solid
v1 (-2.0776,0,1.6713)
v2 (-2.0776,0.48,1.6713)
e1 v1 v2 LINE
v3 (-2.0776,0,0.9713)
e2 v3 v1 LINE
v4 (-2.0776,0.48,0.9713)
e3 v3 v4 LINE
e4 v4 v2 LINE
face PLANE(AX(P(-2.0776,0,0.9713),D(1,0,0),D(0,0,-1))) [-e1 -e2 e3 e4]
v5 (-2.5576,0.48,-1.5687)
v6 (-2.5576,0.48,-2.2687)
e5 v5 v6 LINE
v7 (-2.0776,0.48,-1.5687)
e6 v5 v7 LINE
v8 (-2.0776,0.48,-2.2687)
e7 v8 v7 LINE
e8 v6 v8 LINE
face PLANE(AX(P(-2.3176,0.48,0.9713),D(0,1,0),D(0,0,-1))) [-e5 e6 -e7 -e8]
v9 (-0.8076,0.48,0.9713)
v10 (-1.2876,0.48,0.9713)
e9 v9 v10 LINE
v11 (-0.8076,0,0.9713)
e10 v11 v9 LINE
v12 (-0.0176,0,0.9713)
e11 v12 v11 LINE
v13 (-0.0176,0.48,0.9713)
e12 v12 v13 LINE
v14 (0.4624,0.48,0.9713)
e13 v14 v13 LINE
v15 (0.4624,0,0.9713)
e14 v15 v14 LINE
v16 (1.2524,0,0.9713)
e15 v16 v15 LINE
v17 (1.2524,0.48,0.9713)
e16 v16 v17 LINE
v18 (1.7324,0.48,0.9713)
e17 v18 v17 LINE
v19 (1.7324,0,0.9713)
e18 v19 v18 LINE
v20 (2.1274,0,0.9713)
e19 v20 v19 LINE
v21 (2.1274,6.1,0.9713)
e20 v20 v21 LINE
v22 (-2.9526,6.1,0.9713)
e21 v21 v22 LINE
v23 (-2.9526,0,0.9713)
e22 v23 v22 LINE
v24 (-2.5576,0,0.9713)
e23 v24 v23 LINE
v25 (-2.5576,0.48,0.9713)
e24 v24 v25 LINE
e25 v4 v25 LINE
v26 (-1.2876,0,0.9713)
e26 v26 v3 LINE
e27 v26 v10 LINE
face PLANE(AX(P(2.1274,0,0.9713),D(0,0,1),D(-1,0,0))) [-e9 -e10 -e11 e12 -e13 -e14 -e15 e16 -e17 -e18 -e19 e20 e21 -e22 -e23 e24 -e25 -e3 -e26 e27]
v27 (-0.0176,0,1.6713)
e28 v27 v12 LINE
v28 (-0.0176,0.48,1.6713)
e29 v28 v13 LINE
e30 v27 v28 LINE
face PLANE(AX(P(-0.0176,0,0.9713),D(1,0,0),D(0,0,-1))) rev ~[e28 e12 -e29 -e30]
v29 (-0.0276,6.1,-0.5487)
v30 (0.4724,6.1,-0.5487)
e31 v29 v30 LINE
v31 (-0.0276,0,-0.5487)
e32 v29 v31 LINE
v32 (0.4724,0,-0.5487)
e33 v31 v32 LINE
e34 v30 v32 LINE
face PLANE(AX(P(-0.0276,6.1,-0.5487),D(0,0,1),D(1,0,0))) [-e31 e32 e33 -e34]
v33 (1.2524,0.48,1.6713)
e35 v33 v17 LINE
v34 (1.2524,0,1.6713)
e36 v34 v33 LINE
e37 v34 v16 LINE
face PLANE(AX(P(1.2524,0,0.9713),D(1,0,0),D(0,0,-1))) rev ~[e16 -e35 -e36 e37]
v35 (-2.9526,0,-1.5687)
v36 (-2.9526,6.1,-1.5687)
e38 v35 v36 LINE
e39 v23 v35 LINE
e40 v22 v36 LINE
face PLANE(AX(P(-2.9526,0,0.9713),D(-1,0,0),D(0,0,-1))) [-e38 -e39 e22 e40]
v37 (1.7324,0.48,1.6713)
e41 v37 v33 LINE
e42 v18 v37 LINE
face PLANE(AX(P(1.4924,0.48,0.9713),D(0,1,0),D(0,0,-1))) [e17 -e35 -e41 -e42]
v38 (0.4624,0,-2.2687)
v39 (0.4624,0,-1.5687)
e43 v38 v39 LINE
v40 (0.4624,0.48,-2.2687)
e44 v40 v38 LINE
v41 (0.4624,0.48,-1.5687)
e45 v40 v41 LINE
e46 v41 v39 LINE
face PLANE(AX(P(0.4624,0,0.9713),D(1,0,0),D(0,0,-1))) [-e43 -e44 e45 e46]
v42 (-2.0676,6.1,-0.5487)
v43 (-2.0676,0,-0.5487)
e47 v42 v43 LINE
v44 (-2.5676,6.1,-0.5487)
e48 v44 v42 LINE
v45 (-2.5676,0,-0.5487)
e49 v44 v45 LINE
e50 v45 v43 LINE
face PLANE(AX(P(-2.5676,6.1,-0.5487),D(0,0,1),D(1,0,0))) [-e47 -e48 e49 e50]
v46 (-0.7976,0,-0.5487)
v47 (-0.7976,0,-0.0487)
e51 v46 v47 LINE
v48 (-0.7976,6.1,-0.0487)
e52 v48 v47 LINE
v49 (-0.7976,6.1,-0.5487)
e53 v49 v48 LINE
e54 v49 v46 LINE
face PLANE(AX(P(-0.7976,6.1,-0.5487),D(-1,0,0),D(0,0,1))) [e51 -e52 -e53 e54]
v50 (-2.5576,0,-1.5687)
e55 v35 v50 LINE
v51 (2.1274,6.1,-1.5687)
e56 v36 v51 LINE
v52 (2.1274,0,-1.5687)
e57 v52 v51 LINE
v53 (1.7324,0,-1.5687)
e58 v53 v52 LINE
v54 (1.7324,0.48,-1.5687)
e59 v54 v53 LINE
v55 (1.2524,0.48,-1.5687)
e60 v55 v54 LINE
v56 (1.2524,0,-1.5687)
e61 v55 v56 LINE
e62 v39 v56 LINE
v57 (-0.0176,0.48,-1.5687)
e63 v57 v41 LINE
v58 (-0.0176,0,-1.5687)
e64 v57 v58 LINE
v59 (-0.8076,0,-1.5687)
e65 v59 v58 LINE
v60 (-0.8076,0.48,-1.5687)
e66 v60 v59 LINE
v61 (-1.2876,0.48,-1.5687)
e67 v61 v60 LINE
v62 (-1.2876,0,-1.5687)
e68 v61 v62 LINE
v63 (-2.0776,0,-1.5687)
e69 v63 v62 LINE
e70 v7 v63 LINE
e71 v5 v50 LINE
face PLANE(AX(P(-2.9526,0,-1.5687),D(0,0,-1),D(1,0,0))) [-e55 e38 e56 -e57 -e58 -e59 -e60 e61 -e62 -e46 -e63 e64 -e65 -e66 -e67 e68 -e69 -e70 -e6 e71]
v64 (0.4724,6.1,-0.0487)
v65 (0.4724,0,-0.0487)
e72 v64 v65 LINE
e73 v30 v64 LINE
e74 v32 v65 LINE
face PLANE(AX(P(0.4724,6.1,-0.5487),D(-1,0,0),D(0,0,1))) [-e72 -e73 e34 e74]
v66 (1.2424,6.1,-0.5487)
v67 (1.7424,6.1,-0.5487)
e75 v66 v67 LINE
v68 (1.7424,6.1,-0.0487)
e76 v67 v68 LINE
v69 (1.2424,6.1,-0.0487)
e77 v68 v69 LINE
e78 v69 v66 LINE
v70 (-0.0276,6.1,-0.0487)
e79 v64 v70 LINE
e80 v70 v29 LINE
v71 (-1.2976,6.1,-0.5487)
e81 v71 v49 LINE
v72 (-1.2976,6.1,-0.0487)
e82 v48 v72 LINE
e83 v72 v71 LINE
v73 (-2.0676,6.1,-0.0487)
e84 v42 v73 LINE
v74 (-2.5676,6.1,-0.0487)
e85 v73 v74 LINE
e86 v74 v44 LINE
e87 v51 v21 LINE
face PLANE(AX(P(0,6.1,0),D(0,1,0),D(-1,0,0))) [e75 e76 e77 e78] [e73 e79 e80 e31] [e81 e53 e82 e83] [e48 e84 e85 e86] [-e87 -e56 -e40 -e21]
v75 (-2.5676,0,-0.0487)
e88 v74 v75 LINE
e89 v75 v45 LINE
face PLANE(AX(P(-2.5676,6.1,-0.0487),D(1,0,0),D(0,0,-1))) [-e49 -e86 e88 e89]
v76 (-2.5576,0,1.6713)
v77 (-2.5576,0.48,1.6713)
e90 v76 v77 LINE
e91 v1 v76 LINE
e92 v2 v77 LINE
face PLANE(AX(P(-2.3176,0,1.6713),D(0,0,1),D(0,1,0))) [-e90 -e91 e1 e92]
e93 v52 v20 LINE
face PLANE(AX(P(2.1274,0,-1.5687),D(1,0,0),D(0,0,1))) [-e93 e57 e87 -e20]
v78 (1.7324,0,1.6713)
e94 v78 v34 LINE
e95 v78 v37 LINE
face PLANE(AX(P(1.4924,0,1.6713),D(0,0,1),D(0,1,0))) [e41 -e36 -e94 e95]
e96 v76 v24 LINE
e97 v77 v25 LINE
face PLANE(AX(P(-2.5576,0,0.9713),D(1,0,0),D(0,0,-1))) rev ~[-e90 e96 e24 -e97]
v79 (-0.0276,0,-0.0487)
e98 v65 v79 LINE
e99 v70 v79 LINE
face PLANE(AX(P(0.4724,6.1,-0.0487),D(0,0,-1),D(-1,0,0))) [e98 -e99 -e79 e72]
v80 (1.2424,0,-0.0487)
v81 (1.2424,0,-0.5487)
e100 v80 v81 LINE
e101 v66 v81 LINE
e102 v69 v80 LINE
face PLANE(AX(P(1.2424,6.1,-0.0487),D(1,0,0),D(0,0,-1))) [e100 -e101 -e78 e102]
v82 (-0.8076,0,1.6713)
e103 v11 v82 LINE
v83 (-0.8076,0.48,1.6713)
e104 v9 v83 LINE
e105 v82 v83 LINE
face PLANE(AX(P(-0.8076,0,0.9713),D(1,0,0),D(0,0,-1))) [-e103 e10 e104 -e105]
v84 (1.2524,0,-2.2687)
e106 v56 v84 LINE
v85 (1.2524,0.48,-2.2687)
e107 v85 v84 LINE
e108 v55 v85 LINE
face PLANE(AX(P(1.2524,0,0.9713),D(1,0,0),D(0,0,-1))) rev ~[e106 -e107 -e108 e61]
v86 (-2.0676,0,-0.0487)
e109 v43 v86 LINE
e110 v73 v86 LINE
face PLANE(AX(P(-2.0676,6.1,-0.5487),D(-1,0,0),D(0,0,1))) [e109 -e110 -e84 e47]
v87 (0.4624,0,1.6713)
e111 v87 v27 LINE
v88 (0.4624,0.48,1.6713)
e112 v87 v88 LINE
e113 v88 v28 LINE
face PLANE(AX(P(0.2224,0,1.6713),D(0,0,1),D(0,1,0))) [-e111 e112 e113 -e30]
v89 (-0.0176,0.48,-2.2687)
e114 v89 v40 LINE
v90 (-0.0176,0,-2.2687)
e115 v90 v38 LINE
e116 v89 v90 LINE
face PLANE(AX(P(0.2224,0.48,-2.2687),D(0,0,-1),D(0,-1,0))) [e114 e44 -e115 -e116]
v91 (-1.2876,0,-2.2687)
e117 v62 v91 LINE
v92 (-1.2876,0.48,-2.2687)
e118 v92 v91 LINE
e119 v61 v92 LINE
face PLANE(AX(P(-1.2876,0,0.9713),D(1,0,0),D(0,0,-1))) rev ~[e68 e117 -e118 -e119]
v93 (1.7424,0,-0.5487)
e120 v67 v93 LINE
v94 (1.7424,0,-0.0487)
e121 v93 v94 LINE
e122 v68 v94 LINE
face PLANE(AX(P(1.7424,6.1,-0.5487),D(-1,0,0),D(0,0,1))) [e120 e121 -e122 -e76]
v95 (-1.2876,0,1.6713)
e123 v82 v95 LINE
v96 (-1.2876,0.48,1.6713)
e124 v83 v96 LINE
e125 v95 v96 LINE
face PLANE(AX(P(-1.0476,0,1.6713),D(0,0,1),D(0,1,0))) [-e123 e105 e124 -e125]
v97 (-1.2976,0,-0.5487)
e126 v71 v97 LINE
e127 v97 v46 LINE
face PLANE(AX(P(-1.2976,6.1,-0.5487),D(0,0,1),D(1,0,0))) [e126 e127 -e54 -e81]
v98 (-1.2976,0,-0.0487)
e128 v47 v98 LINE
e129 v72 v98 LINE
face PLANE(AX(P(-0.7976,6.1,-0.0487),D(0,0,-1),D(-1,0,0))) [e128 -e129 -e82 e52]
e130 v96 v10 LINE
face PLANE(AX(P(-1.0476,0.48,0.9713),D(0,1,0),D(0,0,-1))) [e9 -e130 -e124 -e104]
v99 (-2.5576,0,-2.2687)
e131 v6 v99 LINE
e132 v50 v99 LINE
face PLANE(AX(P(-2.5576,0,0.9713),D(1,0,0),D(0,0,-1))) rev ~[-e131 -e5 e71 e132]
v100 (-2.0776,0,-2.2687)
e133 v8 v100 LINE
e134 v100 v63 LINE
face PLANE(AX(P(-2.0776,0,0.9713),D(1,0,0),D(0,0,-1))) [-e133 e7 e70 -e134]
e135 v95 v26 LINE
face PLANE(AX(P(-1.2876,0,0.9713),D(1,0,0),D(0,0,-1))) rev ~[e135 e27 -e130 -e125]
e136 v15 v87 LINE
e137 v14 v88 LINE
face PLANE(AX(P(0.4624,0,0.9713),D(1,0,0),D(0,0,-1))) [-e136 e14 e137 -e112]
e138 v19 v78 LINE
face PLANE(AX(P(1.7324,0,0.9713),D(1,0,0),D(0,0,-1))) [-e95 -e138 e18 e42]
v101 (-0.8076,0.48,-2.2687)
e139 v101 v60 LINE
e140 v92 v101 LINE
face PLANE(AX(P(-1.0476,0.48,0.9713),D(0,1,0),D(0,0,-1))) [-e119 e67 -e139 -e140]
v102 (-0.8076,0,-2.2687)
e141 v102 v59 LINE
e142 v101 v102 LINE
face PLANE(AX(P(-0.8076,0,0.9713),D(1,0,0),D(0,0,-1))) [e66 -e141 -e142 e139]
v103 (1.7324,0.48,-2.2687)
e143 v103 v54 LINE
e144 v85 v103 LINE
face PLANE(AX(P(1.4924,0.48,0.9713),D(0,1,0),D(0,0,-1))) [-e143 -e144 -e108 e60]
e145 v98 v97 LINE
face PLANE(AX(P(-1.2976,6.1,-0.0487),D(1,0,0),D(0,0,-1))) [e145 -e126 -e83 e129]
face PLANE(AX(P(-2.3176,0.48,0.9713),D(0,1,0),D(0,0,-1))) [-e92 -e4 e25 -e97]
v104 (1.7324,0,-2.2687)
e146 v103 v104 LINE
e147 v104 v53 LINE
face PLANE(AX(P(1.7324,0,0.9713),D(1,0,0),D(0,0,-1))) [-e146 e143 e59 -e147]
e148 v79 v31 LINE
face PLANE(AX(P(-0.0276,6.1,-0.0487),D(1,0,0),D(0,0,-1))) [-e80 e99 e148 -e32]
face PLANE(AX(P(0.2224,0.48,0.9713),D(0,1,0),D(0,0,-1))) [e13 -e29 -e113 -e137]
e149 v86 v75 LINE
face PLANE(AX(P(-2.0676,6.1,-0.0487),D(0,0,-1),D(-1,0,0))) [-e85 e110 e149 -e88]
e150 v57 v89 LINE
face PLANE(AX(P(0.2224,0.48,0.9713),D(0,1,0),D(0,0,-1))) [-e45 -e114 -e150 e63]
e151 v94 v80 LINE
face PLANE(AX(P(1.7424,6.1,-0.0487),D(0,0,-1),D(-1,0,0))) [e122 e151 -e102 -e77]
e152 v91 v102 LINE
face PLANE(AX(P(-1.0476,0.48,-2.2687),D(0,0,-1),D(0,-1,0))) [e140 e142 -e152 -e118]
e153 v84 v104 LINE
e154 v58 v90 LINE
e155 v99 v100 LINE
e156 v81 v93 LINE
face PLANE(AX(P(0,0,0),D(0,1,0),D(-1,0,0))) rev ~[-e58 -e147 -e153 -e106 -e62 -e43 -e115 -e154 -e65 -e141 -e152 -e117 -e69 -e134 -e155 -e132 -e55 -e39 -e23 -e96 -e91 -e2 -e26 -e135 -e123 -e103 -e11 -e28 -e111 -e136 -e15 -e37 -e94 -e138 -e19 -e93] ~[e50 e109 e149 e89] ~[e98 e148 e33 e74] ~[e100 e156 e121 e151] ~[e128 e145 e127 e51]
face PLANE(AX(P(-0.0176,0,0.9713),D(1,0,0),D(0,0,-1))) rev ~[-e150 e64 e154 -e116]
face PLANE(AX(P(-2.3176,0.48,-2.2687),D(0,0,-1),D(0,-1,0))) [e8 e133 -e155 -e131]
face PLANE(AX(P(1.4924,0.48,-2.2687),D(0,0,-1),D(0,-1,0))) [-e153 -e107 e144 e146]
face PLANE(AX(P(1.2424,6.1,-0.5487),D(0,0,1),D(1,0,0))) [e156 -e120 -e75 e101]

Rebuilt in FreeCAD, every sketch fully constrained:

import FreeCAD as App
import Part
import Sketcher
from FreeCAD import Vector
Q = App.Units.Quantity

doc = App.newDocument("Part")
body = doc.addObject("PartDesign::Body", "Body")

sketch1 = doc.addObject("Sketcher::SketchObject", "Sketch")
body.addObject(sketch1)
sketch1.AttachmentSupport = (doc.XZ_Plane, [""])
sketch1.MapMode = "FlatFace"
sketch1.addGeometry(Part.LineSegment(Vector(-3, 1, 0), Vector(2.1, 1, 0)), False)
sketch1.addGeometry(Part.LineSegment(Vector(2.1, 1, 0), Vector(2.1, -1.6, 0)), False)
sketch1.addGeometry(Part.LineSegment(Vector(2.1, -1.6, 0), Vector(-3, -1.6, 0)), False)
sketch1.addGeometry(Part.LineSegment(Vector(-3, -1.6, 0), Vector(-3, 1, 0)), False)
sketch1.addConstraint(Sketcher.Constraint("Coincident", 0, 2, 1, 1))
sketch1.addConstraint(Sketcher.Constraint("Coincident", 1, 2, 2, 1))
sketch1.addConstraint(Sketcher.Constraint("Coincident", 2, 2, 3, 1))
sketch1.addConstraint(Sketcher.Constraint("Coincident", 3, 2, 0, 1))
sketch1.addConstraint(Sketcher.Constraint("Horizontal", 0))
sketch1.addConstraint(Sketcher.Constraint("Vertical", 1))
sketch1.addConstraint(Sketcher.Constraint("Horizontal", 2))
sketch1.addConstraint(Sketcher.Constraint("Vertical", 3))
sketch1.addConstraint(Sketcher.Constraint("DistanceX", 0, 1, 0, 2, Q("5.08 mm")))
sketch1.addConstraint(Sketcher.Constraint("DistanceY", 1, 2, 1, 1, Q("2.54 mm")))
sketch1.addConstraint(Sketcher.Constraint("DistanceX", -1, 1, 0, 2, Q("2.1274 mm")))
sketch1.addConstraint(Sketcher.Constraint("DistanceY", -1, 1, 0, 2, Q("0.9713 mm")))
pad1 = doc.addObject("PartDesign::Pad", "Pad")
body.addObject(pad1)
pad1.Profile = sketch1
pad1.Length = 6.1
pad1.Reversed = True

sketch2 = doc.addObject("Sketcher::SketchObject", "Sketch001")
body.addObject(sketch2)
sketch2.AttachmentSupport = (doc.YZ_Plane, [""])
sketch2.MapMode = "FlatFace"
sketch2.AttachmentOffset = App.Placement(Vector(0, 0, 1.4924), App.Rotation())
sketch2.addGeometry(Part.LineSegment(Vector(0, -2.27, 0), Vector(0.48, -2.27, 0)), False)
sketch2.addGeometry(Part.LineSegment(Vector(0.48, -2.27, 0), Vector(0.48, 1.67, 0)), False)
sketch2.addGeometry(Part.LineSegment(Vector(0.48, 1.67, 0), Vector(0, 1.67, 0)), False)
sketch2.addGeometry(Part.LineSegment(Vector(0, 1.67, 0), Vector(0, -2.27, 0)), False)
sketch2.addConstraint(Sketcher.Constraint("Coincident", 0, 2, 1, 1))
sketch2.addConstraint(Sketcher.Constraint("Coincident", 1, 2, 2, 1))
sketch2.addConstraint(Sketcher.Constraint("Coincident", 2, 2, 3, 1))
sketch2.addConstraint(Sketcher.Constraint("Coincident", 3, 2, 0, 1))
sketch2.addConstraint(Sketcher.Constraint("Horizontal", 0))
sketch2.addConstraint(Sketcher.Constraint("Vertical", 1))
sketch2.addConstraint(Sketcher.Constraint("Horizontal", 2))
sketch2.addConstraint(Sketcher.Constraint("Vertical", 3))
sketch2.addConstraint(Sketcher.Constraint("PointOnObject", 2, 2, -2))
sketch2.addConstraint(Sketcher.Constraint("DistanceX", 0, 1, 0, 2, Q("0.48 mm")))
sketch2.addConstraint(Sketcher.Constraint("DistanceY", 1, 1, 1, 2, Q("3.94 mm")))
sketch2.addConstraint(Sketcher.Constraint("DistanceY", 0, 2, -1, 1, Q("2.2687 mm")))
pad2 = doc.addObject("PartDesign::Pad", "Pad001")
body.addObject(pad2)
pad2.Profile = sketch2
pad2.Length = 0.48
pad2.Midplane = True
doc.recompute()

linearpattern = doc.addObject("PartDesign::LinearPattern", "LinearPattern")
body.addObject(linearpattern)
linearpattern.Originals = [pad2]
linearpattern.Direction = (doc.X_Axis, [""])
linearpattern.Mode = "offset"
linearpattern.Offset = 1.27
linearpattern.Occurrences = 4
linearpattern.Reversed = True
body.Tip = linearpattern

sketch3 = doc.addObject("Sketcher::SketchObject", "Sketch002")
body.addObject(sketch3)
sketch3.AttachmentSupport = (doc.XZ_Plane, [""])
sketch3.MapMode = "FlatFace"
sketch3.AttachmentOffset = App.Placement(Vector(0, 0, -6.1), App.Rotation())
sketch3.addGeometry(Part.LineSegment(Vector(-2.07, -0.55, 0), Vector(-2.57, -0.55, 0)), False)
sketch3.addGeometry(Part.LineSegment(Vector(-2.57, -0.55, 0), Vector(-2.57, -0.05, 0)), False)
sketch3.addGeometry(Part.LineSegment(Vector(-2.57, -0.05, 0), Vector(-2.07, -0.05, 0)), False)
sketch3.addGeometry(Part.LineSegment(Vector(-2.07, -0.05, 0), Vector(-2.07, -0.55, 0)), False)
sketch3.addConstraint(Sketcher.Constraint("Coincident", 0, 2, 1, 1))
sketch3.addConstraint(Sketcher.Constraint("Coincident", 1, 2, 2, 1))
sketch3.addConstraint(Sketcher.Constraint("Coincident", 2, 2, 3, 1))
sketch3.addConstraint(Sketcher.Constraint("Coincident", 3, 2, 0, 1))
sketch3.addConstraint(Sketcher.Constraint("Horizontal", 0))
sketch3.addConstraint(Sketcher.Constraint("Vertical", 1))
sketch3.addConstraint(Sketcher.Constraint("Horizontal", 2))
sketch3.addConstraint(Sketcher.Constraint("Vertical", 3))
sketch3.addConstraint(Sketcher.Constraint("Equal", 2, 1))
sketch3.addConstraint(Sketcher.Constraint("DistanceX", 0, 2, 0, 1, Q("0.5 mm")))
sketch3.addConstraint(Sketcher.Constraint("DistanceX", 0, 2, -1, 1, Q("2.5676 mm")))
sketch3.addConstraint(Sketcher.Constraint("DistanceY", 0, 2, -1, 1, Q("0.5487 mm")))
pocket1 = doc.addObject("PartDesign::Pocket", "Pocket")
body.addObject(pocket1)
pocket1.Profile = sketch3
pocket1.Type = "ThroughAll"
pocket1.Reversed = True
doc.recompute()

linearpattern2 = doc.addObject("PartDesign::LinearPattern", "LinearPattern001")
body.addObject(linearpattern2)
linearpattern2.Originals = [pocket1]
linearpattern2.Direction = (doc.X_Axis, [""])
linearpattern2.Mode = "offset"
linearpattern2.Offset = 1.27
linearpattern2.Occurrences = 4
body.Tip = linearpattern2

doc.recompute()
